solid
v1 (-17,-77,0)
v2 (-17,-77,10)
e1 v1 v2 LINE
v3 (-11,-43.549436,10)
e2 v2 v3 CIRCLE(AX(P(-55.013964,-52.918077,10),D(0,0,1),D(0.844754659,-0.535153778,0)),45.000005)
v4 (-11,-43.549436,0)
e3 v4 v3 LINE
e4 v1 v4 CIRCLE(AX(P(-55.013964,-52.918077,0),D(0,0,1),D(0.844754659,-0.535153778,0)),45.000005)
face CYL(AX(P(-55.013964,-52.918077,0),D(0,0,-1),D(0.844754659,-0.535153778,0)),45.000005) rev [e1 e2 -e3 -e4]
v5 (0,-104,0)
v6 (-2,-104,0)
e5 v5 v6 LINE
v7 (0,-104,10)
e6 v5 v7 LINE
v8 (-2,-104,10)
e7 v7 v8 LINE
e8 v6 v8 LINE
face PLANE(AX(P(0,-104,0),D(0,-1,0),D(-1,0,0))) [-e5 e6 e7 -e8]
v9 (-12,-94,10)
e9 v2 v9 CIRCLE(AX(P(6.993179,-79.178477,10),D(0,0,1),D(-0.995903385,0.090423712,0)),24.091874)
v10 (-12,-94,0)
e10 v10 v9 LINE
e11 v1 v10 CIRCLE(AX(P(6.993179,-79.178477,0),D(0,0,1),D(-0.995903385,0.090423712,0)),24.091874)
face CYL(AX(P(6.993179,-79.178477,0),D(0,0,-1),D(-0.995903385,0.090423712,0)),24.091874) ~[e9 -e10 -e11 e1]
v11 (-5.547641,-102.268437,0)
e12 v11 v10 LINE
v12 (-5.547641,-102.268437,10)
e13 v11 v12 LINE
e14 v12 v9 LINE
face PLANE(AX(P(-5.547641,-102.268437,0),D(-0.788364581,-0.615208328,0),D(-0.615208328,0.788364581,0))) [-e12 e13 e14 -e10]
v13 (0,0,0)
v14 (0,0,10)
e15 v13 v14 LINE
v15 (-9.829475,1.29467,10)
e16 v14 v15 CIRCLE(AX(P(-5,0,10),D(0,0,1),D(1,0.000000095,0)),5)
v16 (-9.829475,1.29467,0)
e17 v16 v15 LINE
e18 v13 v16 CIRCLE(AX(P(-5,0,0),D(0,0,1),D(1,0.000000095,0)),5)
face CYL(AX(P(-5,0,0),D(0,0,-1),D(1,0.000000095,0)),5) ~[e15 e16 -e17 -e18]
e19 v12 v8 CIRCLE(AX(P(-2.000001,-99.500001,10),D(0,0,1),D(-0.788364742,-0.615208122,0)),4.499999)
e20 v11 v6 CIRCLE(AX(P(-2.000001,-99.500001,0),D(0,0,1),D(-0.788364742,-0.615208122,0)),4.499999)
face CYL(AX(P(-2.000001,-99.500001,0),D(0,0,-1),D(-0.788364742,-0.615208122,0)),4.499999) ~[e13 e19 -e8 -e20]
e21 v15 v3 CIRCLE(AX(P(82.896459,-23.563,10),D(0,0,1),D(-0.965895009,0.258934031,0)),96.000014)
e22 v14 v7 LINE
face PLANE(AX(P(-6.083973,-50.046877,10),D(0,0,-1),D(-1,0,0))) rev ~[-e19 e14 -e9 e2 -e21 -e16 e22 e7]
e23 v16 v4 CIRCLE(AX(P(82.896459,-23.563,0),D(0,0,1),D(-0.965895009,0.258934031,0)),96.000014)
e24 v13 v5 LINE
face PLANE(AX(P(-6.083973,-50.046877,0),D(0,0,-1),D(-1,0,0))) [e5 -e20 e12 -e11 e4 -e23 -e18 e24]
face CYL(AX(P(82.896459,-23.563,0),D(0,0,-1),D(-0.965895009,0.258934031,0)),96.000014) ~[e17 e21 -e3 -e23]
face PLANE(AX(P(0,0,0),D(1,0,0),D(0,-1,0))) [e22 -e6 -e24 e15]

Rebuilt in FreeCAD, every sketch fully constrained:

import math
import FreeCAD as App
import Part
import Sketcher

doc = App.newDocument("Part")
body = doc.addObject("PartDesign::Body", "Body")

sketch1 = doc.addObject("Sketcher::SketchObject", "Sketch")
body.addObject(sketch1)
sketch1.AttachmentSupport = (doc.XY_Plane, [""])
sketch1.MapMode = "FlatFace"
sketch1.addGeometry([
    Part.LineSegment(App.Vector(0, -104, 0), App.Vector(0, 0, 0)),
    Part.ArcOfCircle(Part.Circle(App.Vector(-5, 0, 0), App.Vector(0, 0, 1), 5), math.radians(0), math.radians(165)),
    Part.ArcOfCircle(Part.Circle(App.Vector(82.9, -23.6, 0), App.Vector(0, 0, 1), 96), math.radians(165), math.radians(192)),
    Part.ArcOfCircle(Part.Circle(App.Vector(-55, -52.9, 0), App.Vector(0, 0, 1), 45), math.radians(-32), math.radians(12)),
    Part.ArcOfCircle(Part.Circle(App.Vector(7, -79.2, 0), App.Vector(0, 0, 1), 24.1), math.radians(175), math.radians(218)),
    Part.LineSegment(App.Vector(-12, -94, 0), App.Vector(-5.5, -102.3, 0)),
    Part.ArcOfCircle(Part.Circle(App.Vector(-2, -99.5, 0), App.Vector(0, 0, 1), 4.5), math.radians(-142), math.radians(-90)),
    Part.LineSegment(App.Vector(-2, -104, 0), App.Vector(0, -104, 0)),
], False)
sketch1.addConstraint([
    Sketcher.Constraint("Tangent", 0, 2, 1, 1),
    Sketcher.Constraint("Tangent", 1, 2, 2, 1),
    Sketcher.Constraint("Tangent", 2, 2, 3, 2),
    Sketcher.Constraint("Coincident", 3, 1, 4, 1),
    Sketcher.Constraint("Tangent", 4, 2, 5, 1),
    Sketcher.Constraint("Tangent", 5, 2, 6, 1),
    Sketcher.Constraint("Tangent", 6, 2, 7, 1),
    Sketcher.Constraint("Coincident", 7, 2, 0, 1),
    Sketcher.Constraint("Vertical", 0),
    Sketcher.Constraint("Horizontal", 7),
    Sketcher.Constraint("Coincident", 0, 2, -1, 1),
    Sketcher.Constraint("Radius", 1, 5.0),
    Sketcher.Constraint("Radius", 6, 4.499999),
    Sketcher.Constraint("DistanceX", 7, 1, 7, 2, 2.0),
    Sketcher.Constraint("DistanceY", 0, 1, 0, 2, 104.0),
    Sketcher.Constraint("DistanceX", 2, 2, -1, 1, 11.0),
    Sketcher.Constraint("DistanceX", 3, 1, -1, 1, 17.0),
    Sketcher.Constraint("DistanceY", 3, 1, -1, 1, 77.0),
    Sketcher.Constraint("DistanceX", 4, 2, -1, 1, 12.0),
    Sketcher.Constraint("DistanceY", 4, 2, -1, 1, 94.0),
    Sketcher.Constraint("DistanceY", 2, 3, -1, 1, 23.563),
    Sketcher.Constraint("Radius", 2, 96.000014),
])
pad1 = doc.addObject("PartDesign::Pad", "Pad")
body.addObject(pad1)
pad1.Profile = sketch1
pad1.Length = 10

doc.recompute()
